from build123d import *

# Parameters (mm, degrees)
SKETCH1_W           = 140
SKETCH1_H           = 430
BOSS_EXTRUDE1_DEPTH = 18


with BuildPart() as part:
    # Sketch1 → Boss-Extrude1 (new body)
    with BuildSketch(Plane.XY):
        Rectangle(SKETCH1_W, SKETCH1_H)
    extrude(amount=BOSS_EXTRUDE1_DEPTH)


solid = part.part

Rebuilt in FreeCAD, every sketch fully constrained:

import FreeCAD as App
import Part
import Sketcher
from FreeCAD import Vector
Q = App.Units.Quantity

doc = App.newDocument("Part")
params = doc.addObject("Spreadsheet::Sheet", "Params")
for row, (alias, value) in enumerate([
    ("sketch1_width", "140 mm"),
    ("sketch1_height", "430 mm"),
    ("pad1_length", "18 mm"),
], start=1):
    params.set(f"A{row}", alias)
    params.set(f"B{row}", "=" + value)
    params.setAlias(f"B{row}", alias)

body = doc.addObject("PartDesign::Body", "Body")

# Sketch on XY plane
sketch1 = doc.addObject("Sketcher::SketchObject", "Sketch")
body.addObject(sketch1)
sketch1.AttachmentSupport = (doc.XY_Plane, [""])
sketch1.MapMode = "FlatFace"
sketch1.addGeometry(Part.LineSegment(Vector(-70, 215, 0), Vector(-70, -215, 0)), False)
sketch1.addGeometry(Part.LineSegment(Vector(-70, -215, 0), Vector(70, -215, 0)), False)
sketch1.addGeometry(Part.LineSegment(Vector(70, -215, 0), Vector(70, 215, 0)), False)
sketch1.addGeometry(Part.LineSegment(Vector(70, 215, 0), Vector(-70, 215, 0)), False)
sketch1.addConstraint(Sketcher.Constraint("Coincident", 0, 2, 1, 1))
sketch1.addConstraint(Sketcher.Constraint("Coincident", 1, 2, 2, 1))
sketch1.addConstraint(Sketcher.Constraint("Coincident", 2, 2, 3, 1))
sketch1.addConstraint(Sketcher.Constraint("Coincident", 3, 2, 0, 1))
sketch1.addConstraint(Sketcher.Constraint("Vertical", 0))
sketch1.addConstraint(Sketcher.Constraint("Horizontal", 1))
sketch1.addConstraint(Sketcher.Constraint("Vertical", 2))
sketch1.addConstraint(Sketcher.Constraint("Horizontal", 3))
sketch1.addConstraint(Sketcher.Constraint("Symmetric", 0, 2, 2, 2, -1, 1))
sketch1.addConstraint(Sketcher.Constraint("DistanceX", 1, 1, 1, 2, Q("140 mm")))
sketch1.addConstraint(Sketcher.Constraint("DistanceY", 0, 2, 0, 1, Q("430 mm")))
sketch1.setExpression("Constraints[9]", "Params.sketch1_width")
sketch1.setExpression("Constraints[10]", "Params.sketch1_height")
pad1 = doc.addObject("PartDesign::Pad", "Pad")
body.addObject(pad1)
pad1.Profile = sketch1
pad1.setExpression("Length", "Params.pad1_length")

doc.recompute()
